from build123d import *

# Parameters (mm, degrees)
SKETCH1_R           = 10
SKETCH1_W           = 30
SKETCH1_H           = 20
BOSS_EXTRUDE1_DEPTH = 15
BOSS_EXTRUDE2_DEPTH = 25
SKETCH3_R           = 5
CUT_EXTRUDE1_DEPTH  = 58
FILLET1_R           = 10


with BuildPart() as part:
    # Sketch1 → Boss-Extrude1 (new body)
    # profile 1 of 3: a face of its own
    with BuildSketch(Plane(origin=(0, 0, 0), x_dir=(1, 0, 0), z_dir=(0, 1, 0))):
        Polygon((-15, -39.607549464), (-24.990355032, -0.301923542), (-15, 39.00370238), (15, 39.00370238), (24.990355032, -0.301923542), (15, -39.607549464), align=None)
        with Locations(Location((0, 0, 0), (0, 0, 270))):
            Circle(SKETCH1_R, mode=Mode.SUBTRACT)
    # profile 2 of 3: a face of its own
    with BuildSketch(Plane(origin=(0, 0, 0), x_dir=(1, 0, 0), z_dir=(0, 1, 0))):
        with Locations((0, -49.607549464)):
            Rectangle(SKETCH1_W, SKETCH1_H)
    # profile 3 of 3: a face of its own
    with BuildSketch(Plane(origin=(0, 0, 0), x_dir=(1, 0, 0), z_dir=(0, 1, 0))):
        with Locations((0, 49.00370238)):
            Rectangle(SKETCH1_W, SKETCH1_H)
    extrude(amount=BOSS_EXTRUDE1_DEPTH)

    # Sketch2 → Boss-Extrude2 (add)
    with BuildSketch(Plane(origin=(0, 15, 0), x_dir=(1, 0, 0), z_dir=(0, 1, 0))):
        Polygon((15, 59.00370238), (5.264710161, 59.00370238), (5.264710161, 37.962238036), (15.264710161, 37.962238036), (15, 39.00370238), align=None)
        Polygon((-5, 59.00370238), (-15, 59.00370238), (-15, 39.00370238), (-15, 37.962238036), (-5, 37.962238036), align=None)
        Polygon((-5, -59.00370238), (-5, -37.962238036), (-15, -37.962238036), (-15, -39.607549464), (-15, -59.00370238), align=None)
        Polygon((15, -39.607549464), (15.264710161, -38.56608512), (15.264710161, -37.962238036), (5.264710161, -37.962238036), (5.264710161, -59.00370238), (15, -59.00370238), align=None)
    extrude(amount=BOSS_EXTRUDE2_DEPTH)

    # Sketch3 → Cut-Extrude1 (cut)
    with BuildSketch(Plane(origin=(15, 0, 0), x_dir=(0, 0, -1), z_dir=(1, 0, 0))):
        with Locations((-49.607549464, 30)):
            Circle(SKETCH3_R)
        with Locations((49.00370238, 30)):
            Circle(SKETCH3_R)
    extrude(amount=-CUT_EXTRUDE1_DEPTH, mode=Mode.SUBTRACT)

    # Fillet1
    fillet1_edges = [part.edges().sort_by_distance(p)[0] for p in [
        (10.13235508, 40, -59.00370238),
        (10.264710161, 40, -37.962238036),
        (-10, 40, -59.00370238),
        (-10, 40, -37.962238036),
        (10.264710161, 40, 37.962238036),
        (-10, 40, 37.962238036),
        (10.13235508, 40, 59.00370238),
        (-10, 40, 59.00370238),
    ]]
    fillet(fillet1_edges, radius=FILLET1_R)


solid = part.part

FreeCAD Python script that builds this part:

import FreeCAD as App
import Part
import Sketcher
Q = App.Units.Quantity


def edges_at(feature, points):
    """Names of the edges that pass closest to the given points."""
    edges = feature.Shape.Edges
    near = lambda p: min(range(len(edges)), key=lambda i: edges[i].distToShape(Part.Vertex(*p))[0])
    return sorted({f"Edge{near(p) + 1}" for p in points})


def add_polygon(sketch, points):
    """Adds a closed chain of lines whose ends are joined by coincident constraints."""
    first, n = sketch.GeometryCount, len(points)
    for a, b in zip(points, points[1:] + points[:1]):
        sketch.addGeometry(Part.LineSegment(App.Vector(*a, 0), App.Vector(*b, 0)), False)
    for i in range(n):
        sketch.addConstraint(Sketcher.Constraint("Coincident", first + i, 2, first + (i + 1) % n, 1))

doc = App.newDocument("Part")
params = doc.addObject("Spreadsheet::Sheet", "Params")
for row, (alias, value) in enumerate([
    ("sketch1_diameter", "20 mm"),
    ("sketch1_width", "30 mm"),
    ("sketch1_height", "20 mm"),
    ("pad1_length", "15 mm"),
    ("sketch2_width", "10 mm"),
    ("sketch2_height", "20 mm"),
    ("pad2_length", "25 mm"),
    ("sketch3_diameter", "10 mm"),
    ("pocket1_length", "58 mm"),
    ("fillet_radius", "10 mm"),
], start=1):
    params.set(f"A{row}", alias)
    params.set(f"B{row}", "=" + value)
    params.setAlias(f"B{row}", alias)

body = doc.addObject("PartDesign::Body", "Body")

sketch1 = doc.addObject("Sketcher::SketchObject", "Sketch")
body.addObject(sketch1)
sketch1.AttachmentSupport = (doc.XZ_Plane, [""])
sketch1.MapMode = "FlatFace"
add_polygon(sketch1, [(-25, 0), (-15, 40), (-15, 60), (15, 60), (15, 40), (25, 0), (15, -39), (15, -59), (-15, -59), (-15, -39)])
sketch1.addGeometry(Part.Circle(App.Vector(0, 0, 0), App.Vector(0, 0, 1), 10), False)
sketch1.addConstraint([
    Sketcher.Constraint("Vertical", 1),
    Sketcher.Constraint("Horizontal", 2),
    Sketcher.Constraint("Vertical", 3),
    Sketcher.Constraint("Vertical", 6),
    Sketcher.Constraint("Horizontal", 7),
    Sketcher.Constraint("Vertical", 8),
    Sketcher.Constraint("Coincident", 10, 3, -1, 1),
    Sketcher.Constraint("Symmetric", 0, 2, 3, 2, -2),
    Sketcher.Constraint("Symmetric", 5, 2, 8, 2, -2),
    Sketcher.Constraint("Symmetric", 4, 2, 9, 2, -2),
    Sketcher.Constraint("Parallel", 0, 5),
    Sketcher.Constraint("Vertical", 3, 2, 5, 2),
    Sketcher.Constraint("Equal", 3, 6),
    Sketcher.Constraint("Diameter", 10, Q("20 mm")),
    Sketcher.Constraint("DistanceX", 2, 1, 2, 2, Q("30 mm")),
    Sketcher.Constraint("DistanceY", 1, 1, 1, 2, Q("20 mm")),
    Sketcher.Constraint("DistanceY", -1, 1, 0, 2, Q("39.607549 mm")),
    Sketcher.Constraint("DistanceY", 5, 2, 3, 2, Q("78.611252 mm")),
    Sketcher.Constraint("DistanceX", 9, 2, 4, 2, Q("49.98071 mm")),
])
sketch1.setExpression("Constraints[23]", "Params.sketch1_diameter")
sketch1.setExpression("Constraints[24]", "Params.sketch1_width")
sketch1.setExpression("Constraints[25]", "Params.sketch1_height")
pad1 = doc.addObject("PartDesign::Pad", "Pad")
body.addObject(pad1)
pad1.Profile = sketch1
pad1.setExpression("Length", "Params.pad1_length")
pad1.Reversed = True

sketch2 = doc.addObject("Sketcher::SketchObject", "Sketch001")
body.addObject(sketch2)
sketch2.AttachmentSupport = (doc.XZ_Plane, [""])
sketch2.MapMode = "FlatFace"
sketch2.AttachmentOffset = App.Placement(App.Vector(0, 0, -15), App.Rotation())
add_polygon(sketch2, [(15, -59), (5.3, -59), (5.3, -38), (15.3, -38), (15, -39)])
add_polygon(sketch2, [(-5, -59), (-15, -59), (-15, -38), (-5, -38)])
add_polygon(sketch2, [(-5, 59), (-5, 38), (-15, 38), (-15, 59)])
add_polygon(sketch2, [(15, 39.6), (15.3, 38.6), (15.3, 38), (5.3, 38), (5.3, 59), (15, 59)])
sketch2.addConstraint([
    Sketcher.Constraint("Horizontal", 0),
    Sketcher.Constraint("Vertical", 1),
    Sketcher.Constraint("Horizontal", 2),
    Sketcher.Constraint("Vertical", 4),
    Sketcher.Constraint("Horizontal", 5),
    Sketcher.Constraint("Vertical", 6),
    Sketcher.Constraint("Horizontal", 7),
    Sketcher.Constraint("Vertical", 8),
    Sketcher.Constraint("Vertical", 9),
    Sketcher.Constraint("Horizontal", 10),
    Sketcher.Constraint("Vertical", 11),
    Sketcher.Constraint("Horizontal", 12),
    Sketcher.Constraint("Vertical", 14),
    Sketcher.Constraint("Horizontal", 15),
    Sketcher.Constraint("Vertical", 16),
    Sketcher.Constraint("Horizontal", 17),
    Sketcher.Constraint("Vertical", 18),
    Sketcher.Constraint("Symmetric", 4, 2, 11, 2, -1, 1),
    Sketcher.Constraint("Symmetric", 5, 2, 17, 2, -1, 1),
    Sketcher.Constraint("Symmetric", 4, 2, 5, 2, -2),
    Sketcher.Constraint("Symmetric", 7, 2, 9, 2, -1),
    Sketcher.Constraint("Symmetric", 2, 2, 14, 2, -1),
    Sketcher.Constraint("Horizontal", 2, 2, 6, 2),
    Sketcher.Constraint("Vertical", 1, 2, 15, 2),
    Sketcher.Constraint("Equal", 2, 5),
    Sketcher.Constraint("Equal", 3, 13),
    Sketcher.Constraint("DistanceX", 2, 1, 2, 2, Q("10 mm")),
    Sketcher.Constraint("DistanceY", 4, 2, 4, 1, Q("20 mm")),
    Sketcher.Constraint("DistanceX", -1, 1, 3, 2, Q("15 mm")),
    Sketcher.Constraint("DistanceX", 0, 2, 0, 1, Q("9.73529 mm")),
    Sketcher.Constraint("Distance", 3, Q("1.074579 mm")),
    Sketcher.Constraint("DistanceY", 14, 2, 14, 1, Q("0.603847 mm")),
    Sketcher.Constraint("DistanceY", 1, 2, -1, 1, Q("37.962238 mm")),
])
sketch2.setExpression("Constraints[45]", "Params.sketch2_width")
sketch2.setExpression("Constraints[46]", "Params.sketch2_height")
pad2 = doc.addObject("PartDesign::Pad", "Pad001")
body.addObject(pad2)
pad2.Profile = sketch2
pad2.setExpression("Length", "Params.pad2_length")
pad2.Reversed = True

sketch3 = doc.addObject("Sketcher::SketchObject", "Sketch002")
body.addObject(sketch3)
sketch3.AttachmentSupport = (doc.YZ_Plane, [""])
sketch3.MapMode = "FlatFace"
sketch3.AttachmentOffset = App.Placement(App.Vector(0, 0, 15), App.Rotation())
sketch3.addGeometry([
    Part.Circle(App.Vector(30, 50, 0), App.Vector(0, 0, 1), 5),
    Part.Circle(App.Vector(30, -49, 0), App.Vector(0, 0, 1), 5),
], False)
sketch3.addConstraint([
    Sketcher.Constraint("Equal", 0, 1),
    Sketcher.Constraint("Vertical", 0, 3, 1, 3),
    Sketcher.Constraint("Diameter", 0, Q("10 mm")),
    Sketcher.Constraint("DistanceX", -1, 1, 0, 3, Q("30 mm")),
    Sketcher.Constraint("DistanceY", -1, 1, 0, 3, Q("49.607549 mm")),
    Sketcher.Constraint("DistanceY", 1, 3, 0, 3, Q("98.611252 mm")),
])
sketch3.setExpression("Constraints[2]", "Params.sketch3_diameter")
pocket1 = doc.addObject("PartDesign::Pocket", "Pocket")
body.addObject(pocket1)
pocket1.Profile = sketch3
pocket1.setExpression("Length", "Params.pocket1_length")
doc.recompute()

fillet = doc.addObject("PartDesign::Fillet", "Fillet")
body.addObject(fillet)
fillet.Base = (pocket1, edges_at(pocket1, [
    (10.132, 40, -59.004),
    (10.265, 40, -37.962),
    (-10, 40, -59.004),
    (-10, 40, -37.962),
    (10.265, 40, 37.962),
    (-10, 40, 37.962),
    (10.132, 40, 59.004),
    (-10, 40, 59.004),
]))
fillet.setExpression("Radius", "Params.fillet_radius")

doc.recompute()
